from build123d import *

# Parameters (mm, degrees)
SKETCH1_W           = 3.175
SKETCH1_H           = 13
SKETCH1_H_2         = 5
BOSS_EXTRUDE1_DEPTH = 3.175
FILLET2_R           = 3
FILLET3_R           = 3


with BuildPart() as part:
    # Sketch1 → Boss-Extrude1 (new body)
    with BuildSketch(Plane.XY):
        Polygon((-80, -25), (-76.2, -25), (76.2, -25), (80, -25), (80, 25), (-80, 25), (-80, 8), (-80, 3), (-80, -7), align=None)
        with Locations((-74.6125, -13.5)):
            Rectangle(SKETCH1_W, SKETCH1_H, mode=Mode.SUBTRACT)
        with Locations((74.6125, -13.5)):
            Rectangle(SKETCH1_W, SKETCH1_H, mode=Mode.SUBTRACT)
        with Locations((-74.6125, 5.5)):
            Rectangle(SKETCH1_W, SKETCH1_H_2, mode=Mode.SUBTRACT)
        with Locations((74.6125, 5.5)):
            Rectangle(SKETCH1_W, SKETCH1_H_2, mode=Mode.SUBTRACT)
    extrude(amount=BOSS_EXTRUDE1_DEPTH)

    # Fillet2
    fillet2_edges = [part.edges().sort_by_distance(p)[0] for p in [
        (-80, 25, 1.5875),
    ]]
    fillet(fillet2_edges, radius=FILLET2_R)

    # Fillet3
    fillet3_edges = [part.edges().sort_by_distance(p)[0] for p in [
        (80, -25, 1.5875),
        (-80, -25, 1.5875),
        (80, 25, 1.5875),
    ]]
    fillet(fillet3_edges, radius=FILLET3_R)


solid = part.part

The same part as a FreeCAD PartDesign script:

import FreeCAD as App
import Part
import Sketcher

V = App.Vector


def edges_at(feature, points):
    """Names of the edges that pass closest to the given points."""
    edges = feature.Shape.Edges
    near = lambda p: min(range(len(edges)), key=lambda i: edges[i].distToShape(Part.Vertex(*p))[0])
    return sorted({f"Edge{near(p) + 1}" for p in points})


def add_polygon(sketch, points):
    """Adds a closed chain of lines whose ends are joined by coincident constraints."""
    first, n = sketch.GeometryCount, len(points)
    for a, b in zip(points, points[1:] + points[:1]):
        sketch.addGeometry(Part.LineSegment(App.Vector(*a, 0), App.Vector(*b, 0)), False)
    for i in range(n):
        sketch.addConstraint(Sketcher.Constraint("Coincident", first + i, 2, first + (i + 1) % n, 1))

doc = App.newDocument("Part")
params = doc.addObject("Spreadsheet::Sheet", "Params")
for row, (alias, value) in enumerate([
    ("sketch1_width", "160 mm"),
    ("sketch1_height", "50 mm"),
    ("sketch1_height2", "13 mm"),
    ("sketch1_height3", "5 mm"),
    ("pad1_length", "3.175 mm"),
    ("fillet_radius", "3 mm"),
    ("fillet2_radius", "3 mm"),
], start=1):
    params.set(f"A{row}", alias)
    params.set(f"B{row}", "=" + value)
    params.setAlias(f"B{row}", alias)

body = doc.addObject("PartDesign::Body", "Body")

sketch1 = body.newObject("Sketcher::SketchObject", "Sketch")
sketch1.AttachmentSupport = (doc.getObject("XY_Plane"), [""])
sketch1.MapMode = "FlatFace"
add_polygon(sketch1, [(-80, -25), (80, -25), (80, 25), (-80, 25)])
add_polygon(sketch1, [(-73, -20), (-76.2, -20), (-76.2, -7), (-73, -7)])
add_polygon(sketch1, [(76.2, -20), (73, -20), (73, -7), (76.2, -7)])
add_polygon(sketch1, [(-73, 3), (-76.2, 3), (-76.2, 8), (-73, 8)])
add_polygon(sketch1, [(76.2, 3), (73, 3), (73, 8), (76.2, 8)])
sketch1.addConstraint(Sketcher.Constraint("Horizontal", 0))
sketch1.addConstraint(Sketcher.Constraint("Vertical", 1))
sketch1.addConstraint(Sketcher.Constraint("Horizontal", 2))
sketch1.addConstraint(Sketcher.Constraint("Vertical", 3))
sketch1.addConstraint(Sketcher.Constraint("Horizontal", 4))
sketch1.addConstraint(Sketcher.Constraint("Vertical", 5))
sketch1.addConstraint(Sketcher.Constraint("Horizontal", 6))
sketch1.addConstraint(Sketcher.Constraint("Vertical", 7))
sketch1.addConstraint(Sketcher.Constraint("Horizontal", 8))
sketch1.addConstraint(Sketcher.Constraint("Vertical", 9))
sketch1.addConstraint(Sketcher.Constraint("Horizontal", 10))
sketch1.addConstraint(Sketcher.Constraint("Vertical", 11))
sketch1.addConstraint(Sketcher.Constraint("Horizontal", 12))
sketch1.addConstraint(Sketcher.Constraint("Vertical", 13))
sketch1.addConstraint(Sketcher.Constraint("Horizontal", 14))
sketch1.addConstraint(Sketcher.Constraint("Vertical", 15))
sketch1.addConstraint(Sketcher.Constraint("Horizontal", 16))
sketch1.addConstraint(Sketcher.Constraint("Vertical", 17))
sketch1.addConstraint(Sketcher.Constraint("Horizontal", 18))
sketch1.addConstraint(Sketcher.Constraint("Vertical", 19))
sketch1.addConstraint(Sketcher.Constraint("Symmetric", 0, 2, 2, 2, -1, 1))
sketch1.addConstraint(Sketcher.Constraint("Symmetric", 7, 2, 8, 2, -2))
sketch1.addConstraint(Sketcher.Constraint("Symmetric", 5, 2, 10, 2, -2))
sketch1.addConstraint(Sketcher.Constraint("Symmetric", 15, 2, 16, 2, -2))
sketch1.addConstraint(Sketcher.Constraint("Symmetric", 13, 2, 18, 2, -2))
sketch1.addConstraint(Sketcher.Constraint("Vertical", 5, 2, 12, 2))
sketch1.addConstraint(Sketcher.Constraint("Vertical", 7, 2, 14, 2))
sketch1.addConstraint(Sketcher.Constraint("DistanceX", 0, 1, 0, 2, 160.0))
sketch1.addConstraint(Sketcher.Constraint("DistanceY", 1, 1, 1, 2, 50.0))
sketch1.addConstraint(Sketcher.Constraint("DistanceY", 5, 1, 5, 2, 13.0))
sketch1.addConstraint(Sketcher.Constraint("DistanceY", 13, 1, 13, 2, 5.0))
sketch1.addConstraint(Sketcher.Constraint("DistanceY", 4, 2, -1, 1, 20.0))
sketch1.addConstraint(Sketcher.Constraint("DistanceY", -1, 1, 12, 2, 3.0))
sketch1.addConstraint(Sketcher.Constraint("DistanceX", 4, 2, -1, 1, 76.2))
sketch1.addConstraint(Sketcher.Constraint("DistanceX", 4, 2, 4, 1, 3.175))
sketch1.setExpression("Constraints[47]", "Params.sketch1_width")
sketch1.setExpression("Constraints[48]", "Params.sketch1_height")
sketch1.setExpression("Constraints[49]", "Params.sketch1_height2")
sketch1.setExpression("Constraints[50]", "Params.sketch1_height3")
pad1 = body.newObject("PartDesign::Pad", "Pad")
pad1.Profile = sketch1
pad1.setExpression("Length", "Params.pad1_length")
doc.recompute()

fillet = body.newObject("PartDesign::Fillet", "Fillet")
fillet.Base = (pad1, edges_at(pad1, [(-80, 25, 1.587)]))
fillet.setExpression("Radius", "Params.fillet_radius")
doc.recompute()

fillet2 = body.newObject("PartDesign::Fillet", "Fillet001")
fillet2.Base = (fillet, edges_at(fillet, [(80, -25, 1.587), (-80, -25, 1.587), (80, 25, 1.587)]))
fillet2.setExpression("Radius", "Params.fillet2_radius")

doc.recompute()
